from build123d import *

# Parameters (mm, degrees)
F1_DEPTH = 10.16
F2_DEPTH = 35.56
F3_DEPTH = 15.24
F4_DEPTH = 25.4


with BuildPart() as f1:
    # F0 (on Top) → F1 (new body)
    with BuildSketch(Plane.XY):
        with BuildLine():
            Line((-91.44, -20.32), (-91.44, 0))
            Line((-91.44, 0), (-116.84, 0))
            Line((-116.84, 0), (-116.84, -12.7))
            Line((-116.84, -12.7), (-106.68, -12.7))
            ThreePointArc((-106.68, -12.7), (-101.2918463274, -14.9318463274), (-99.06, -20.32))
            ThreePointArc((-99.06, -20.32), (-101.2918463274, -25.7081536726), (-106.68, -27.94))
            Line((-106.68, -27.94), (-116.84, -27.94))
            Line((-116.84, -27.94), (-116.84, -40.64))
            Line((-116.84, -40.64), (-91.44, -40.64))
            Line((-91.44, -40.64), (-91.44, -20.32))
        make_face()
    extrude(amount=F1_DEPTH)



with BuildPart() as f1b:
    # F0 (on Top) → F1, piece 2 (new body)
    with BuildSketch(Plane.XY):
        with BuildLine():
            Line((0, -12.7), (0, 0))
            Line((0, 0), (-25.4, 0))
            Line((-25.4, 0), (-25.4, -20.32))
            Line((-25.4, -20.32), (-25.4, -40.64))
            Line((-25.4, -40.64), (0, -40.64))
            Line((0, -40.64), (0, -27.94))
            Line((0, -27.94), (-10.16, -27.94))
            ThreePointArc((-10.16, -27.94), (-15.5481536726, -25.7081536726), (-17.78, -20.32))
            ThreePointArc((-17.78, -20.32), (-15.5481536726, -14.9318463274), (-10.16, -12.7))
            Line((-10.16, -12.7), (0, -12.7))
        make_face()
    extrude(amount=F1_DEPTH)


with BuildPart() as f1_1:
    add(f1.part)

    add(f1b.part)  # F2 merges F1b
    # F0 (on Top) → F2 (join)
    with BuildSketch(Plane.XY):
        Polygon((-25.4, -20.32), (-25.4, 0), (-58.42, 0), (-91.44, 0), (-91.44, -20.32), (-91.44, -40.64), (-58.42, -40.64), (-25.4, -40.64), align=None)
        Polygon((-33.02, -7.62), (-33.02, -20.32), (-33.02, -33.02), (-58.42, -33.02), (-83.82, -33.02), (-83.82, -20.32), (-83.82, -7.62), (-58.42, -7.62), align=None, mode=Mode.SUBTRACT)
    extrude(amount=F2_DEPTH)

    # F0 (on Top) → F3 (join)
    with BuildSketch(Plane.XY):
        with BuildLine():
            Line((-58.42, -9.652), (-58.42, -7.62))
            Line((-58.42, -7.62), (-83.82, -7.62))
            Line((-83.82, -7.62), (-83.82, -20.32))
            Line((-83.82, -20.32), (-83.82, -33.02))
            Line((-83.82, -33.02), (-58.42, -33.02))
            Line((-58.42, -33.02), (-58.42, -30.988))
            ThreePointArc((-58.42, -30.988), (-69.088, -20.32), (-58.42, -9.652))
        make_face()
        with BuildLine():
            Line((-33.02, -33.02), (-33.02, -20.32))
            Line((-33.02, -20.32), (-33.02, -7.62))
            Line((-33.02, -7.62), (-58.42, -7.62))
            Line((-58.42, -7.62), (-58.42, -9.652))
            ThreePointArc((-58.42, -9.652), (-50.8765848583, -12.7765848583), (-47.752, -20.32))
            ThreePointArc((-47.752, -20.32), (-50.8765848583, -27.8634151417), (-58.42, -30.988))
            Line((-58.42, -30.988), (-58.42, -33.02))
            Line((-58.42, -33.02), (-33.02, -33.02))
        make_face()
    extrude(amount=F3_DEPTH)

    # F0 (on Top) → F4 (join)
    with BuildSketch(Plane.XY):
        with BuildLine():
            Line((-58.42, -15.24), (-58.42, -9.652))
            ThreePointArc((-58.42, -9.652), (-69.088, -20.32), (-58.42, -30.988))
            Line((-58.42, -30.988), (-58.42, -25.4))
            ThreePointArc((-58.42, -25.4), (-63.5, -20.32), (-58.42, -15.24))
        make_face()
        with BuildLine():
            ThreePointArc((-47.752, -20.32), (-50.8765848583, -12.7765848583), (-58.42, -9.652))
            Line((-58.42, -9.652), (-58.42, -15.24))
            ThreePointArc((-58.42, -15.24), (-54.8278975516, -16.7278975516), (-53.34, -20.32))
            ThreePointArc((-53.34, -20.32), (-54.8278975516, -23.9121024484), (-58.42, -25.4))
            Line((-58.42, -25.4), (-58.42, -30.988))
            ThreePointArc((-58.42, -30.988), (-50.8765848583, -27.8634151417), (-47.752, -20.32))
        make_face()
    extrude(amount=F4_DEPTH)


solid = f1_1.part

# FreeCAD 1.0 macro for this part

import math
import FreeCAD as App
import Part
import Sketcher

V = App.Vector
Q = App.Units.Quantity


def add_polygon(sketch, points):
    """Adds a closed chain of lines whose ends are joined by coincident constraints."""
    first, n = sketch.GeometryCount, len(points)
    for a, b in zip(points, points[1:] + points[:1]):
        sketch.addGeometry(Part.LineSegment(App.Vector(*a, 0), App.Vector(*b, 0)), False)
    for i in range(n):
        sketch.addConstraint(Sketcher.Constraint("Coincident", first + i, 2, first + (i + 1) % n, 1))

doc = App.newDocument("Part")
body = doc.addObject("PartDesign::Body", "Body")

# Sketch on XY plane
sketch1 = body.newObject("Sketcher::SketchObject", "Sketch")
sketch1.AttachmentSupport = (doc.getObject("XY_Plane"), [""])
sketch1.MapMode = "FlatFace"
sketch1.addGeometry([
    Part.LineSegment(V(-91, 0, 0), V(-117, 0, 0)),  # 0
    Part.LineSegment(V(-117, 0, 0), V(-117, -13, 0)),  # 1
    Part.LineSegment(V(-117, -13, 0), V(-107, -13, 0)),  # 2
    Part.ArcOfCircle(Part.Circle(V(-107, -20, 0), V(0, 0, 1), 8), math.radians(0), math.radians(90)),  # 3
    Part.ArcOfCircle(Part.Circle(V(-107, -20, 0), V(0, 0, 1), 8), math.radians(-90), math.radians(0)),  # 4
    Part.LineSegment(V(-107, -28, 0), V(-117, -28, 0)),  # 5
    Part.LineSegment(V(-117, -28, 0), V(-117, -41, 0)),  # 6
    Part.LineSegment(V(-117, -41, 0), V(-91, -41, 0)),  # 7
    Part.LineSegment(V(-91, -41, 0), V(-91, 0, 0)),  # 8
], False)
sketch1.addConstraint([
    Sketcher.Constraint("Coincident", 0, 2, 1, 1),
    Sketcher.Constraint("Coincident", 1, 2, 2, 1),
    Sketcher.Constraint("Tangent", 2, 2, 3, 2),
    Sketcher.Constraint("Tangent", 3, 1, 4, 2),
    Sketcher.Constraint("Tangent", 4, 1, 5, 1),
    Sketcher.Constraint("Coincident", 5, 2, 6, 1),
    Sketcher.Constraint("Coincident", 6, 2, 7, 1),
    Sketcher.Constraint("Coincident", 7, 2, 8, 1),
    Sketcher.Constraint("Coincident", 8, 2, 0, 1),
    Sketcher.Constraint("Horizontal", 0),
    Sketcher.Constraint("Vertical", 1),
    Sketcher.Constraint("Horizontal", 2),
    Sketcher.Constraint("Horizontal", 5),
    Sketcher.Constraint("Vertical", 6),
    Sketcher.Constraint("Horizontal", 7),
    Sketcher.Constraint("Vertical", 8),
    Sketcher.Constraint("Equal", 3, 4),
    Sketcher.Constraint("PointOnObject", 0, 2, -1),
    Sketcher.Constraint("Horizontal", 4, 3, 3, 1),
    Sketcher.Constraint("Vertical", 1, 2, 5, 2),
    Sketcher.Constraint("Equal", 1, 6),
    Sketcher.Constraint("Radius", 3, Q("0.3 in")),
    Sketcher.Constraint("DistanceX", 0, 2, 0, 1, Q("1 in")),
    Sketcher.Constraint("DistanceX", 2, 1, 2, 2, Q("0.4 in")),
    Sketcher.Constraint("DistanceY", 1, 2, 1, 1, Q("0.5 in")),
    Sketcher.Constraint("DistanceX", 3, 3, -1, 1, Q("4.2 in")),
])
pad1 = body.newObject("PartDesign::Pad", "Pad")
pad1.Profile = sketch1
pad1.Length = Q("0.4 in")
body2 = doc.addObject("PartDesign::Body", "Body001")

# Sketch on XY plane
sketch2 = body2.newObject("Sketcher::SketchObject", "Sketch001")
sketch2.AttachmentSupport = (doc.getObject("XY_Plane001"), [""])
sketch2.MapMode = "FlatFace"
sketch2.addGeometry([
    Part.LineSegment(V(0, -13, 0), V(0, 0, 0)),  # 0
    Part.LineSegment(V(0, 0, 0), V(-25, 0, 0)),  # 1
    Part.LineSegment(V(-25, 0, 0), V(-25, -41, 0)),  # 2
    Part.LineSegment(V(-25, -41, 0), V(0, -41, 0)),  # 3
    Part.LineSegment(V(0, -41, 0), V(0, -28, 0)),  # 4
    Part.LineSegment(V(0, -28, 0), V(-10, -28, 0)),  # 5
    Part.ArcOfCircle(Part.Circle(V(-10, -20, 0), V(0, 0, 1), 8), math.radians(180), math.radians(270)),  # 6
    Part.ArcOfCircle(Part.Circle(V(-10, -20, 0), V(0, 0, 1), 8), math.radians(90), math.radians(180)),  # 7
    Part.LineSegment(V(-10, -13, 0), V(0, -13, 0)),  # 8
], False)
sketch2.addConstraint([
    Sketcher.Constraint("Coincident", 0, 2, 1, 1),
    Sketcher.Constraint("Coincident", 1, 2, 2, 1),
    Sketcher.Constraint("Coincident", 2, 2, 3, 1),
    Sketcher.Constraint("Coincident", 3, 2, 4, 1),
    Sketcher.Constraint("Coincident", 4, 2, 5, 1),
    Sketcher.Constraint("Tangent", 5, 2, 6, 2),
    Sketcher.Constraint("Tangent", 6, 1, 7, 2),
    Sketcher.Constraint("Tangent", 7, 1, 8, 1),
    Sketcher.Constraint("Coincident", 8, 2, 0, 1),
    Sketcher.Constraint("Vertical", 0),
    Sketcher.Constraint("Horizontal", 1),
    Sketcher.Constraint("Vertical", 2),
    Sketcher.Constraint("Horizontal", 3),
    Sketcher.Constraint("Vertical", 4),
    Sketcher.Constraint("Horizontal", 5),
    Sketcher.Constraint("Horizontal", 8),
    Sketcher.Constraint("Coincident", 0, 2, -1, 1),
    Sketcher.Constraint("Equal", 6, 7),
    Sketcher.Constraint("PointOnObject", 3, 2, -2),
    Sketcher.Constraint("Horizontal", 7, 3, 6, 1),
    Sketcher.Constraint("Equal", 0, 4),
    Sketcher.Constraint("Radius", 6, Q("0.3 in")),
    Sketcher.Constraint("DistanceX", 1, 2, 1, 1, Q("1 in")),
    Sketcher.Constraint("DistanceX", 5, 2, 5, 1, Q("0.4 in")),
    Sketcher.Constraint("DistanceY", 0, 1, 0, 2, Q("0.5 in")),
])
pad2 = body2.newObject("PartDesign::Pad", "Pad001")
pad2.Profile = sketch2
pad2.Length = Q("0.4 in")
body.AllowCompound = True
doc.recompute()

boolean = body.newObject("PartDesign::Boolean", "Boolean")
boolean.Type = "Fuse"
boolean.addObjects([body2])

# Sketch on XY plane
sketch3 = body.newObject("Sketcher::SketchObject", "Sketch002")
sketch3.AttachmentSupport = (doc.getObject("XY_Plane"), [""])
sketch3.MapMode = "FlatFace"
add_polygon(sketch3, [(-25, 0), (-91, 0), (-91, -41), (-25, -41)])  # lines 0-3
add_polygon(sketch3, [(-84, -8), (-33, -8), (-33, -33), (-84, -33)])  # lines 4-7
sketch3.addConstraint([
    Sketcher.Constraint("Horizontal", 0),
    Sketcher.Constraint("Vertical", 1),
    Sketcher.Constraint("Horizontal", 2),
    Sketcher.Constraint("Vertical", 3),
    Sketcher.Constraint("Horizontal", 4),
    Sketcher.Constraint("Vertical", 5),
    Sketcher.Constraint("Horizontal", 6),
    Sketcher.Constraint("Vertical", 7),
    Sketcher.Constraint("PointOnObject", 0, 2, -1),
    Sketcher.Constraint("DistanceX", 4, 1, 4, 2, Q("2 in")),
    Sketcher.Constraint("DistanceY", 5, 2, 5, 1, Q("1 in")),
    Sketcher.Constraint("DistanceX", 0, 2, 0, 1, Q("2.6 in")),
    Sketcher.Constraint("DistanceY", 1, 2, 1, 1, Q("1.6 in")),
    Sketcher.Constraint("DistanceX", 2, 2, -1, 1, Q("1 in")),
    Sketcher.Constraint("DistanceX", 4, 2, -1, 1, Q("1.3 in")),
    Sketcher.Constraint("DistanceY", 4, 2, -1, 1, Q("0.3 in")),
])
pad3 = body.newObject("PartDesign::Pad", "Pad002")
pad3.Profile = sketch3
pad3.Length = Q("1.4 in")

# Sketch on XY plane
sketch4 = body.newObject("Sketcher::SketchObject", "Sketch003")
sketch4.AttachmentSupport = (doc.getObject("XY_Plane"), [""])
sketch4.MapMode = "FlatFace"
add_polygon(sketch4, [(-84, -8), (-84, -33), (-33, -33), (-33, -8)])  # lines 0-3
sketch4.addGeometry(Part.Circle(V(-58, -20, 0), V(0, 0, 1), 11), False)  # 4
sketch4.addConstraint([
    Sketcher.Constraint("Vertical", 0),
    Sketcher.Constraint("Horizontal", 1),
    Sketcher.Constraint("Vertical", 2),
    Sketcher.Constraint("Horizontal", 3),
    Sketcher.Constraint("Diameter", 4, Q("0.84 in")),
    Sketcher.Constraint("DistanceX", 1, 1, 1, 2, Q("2 in")),
    Sketcher.Constraint("DistanceY", 0, 2, 0, 1, Q("1 in")),
    Sketcher.Constraint("DistanceX", 0, 2, 4, 3, Q("1 in")),
    Sketcher.Constraint("DistanceX", 4, 3, -1, 1, Q("2.3 in")),
    Sketcher.Constraint("DistanceY", 4, 3, -1, 1, Q("0.8 in")),
    Sketcher.Constraint("DistanceY", 0, 2, -1, 1, Q("1.3 in")),
])
pad4 = body.newObject("PartDesign::Pad", "Pad003")
pad4.Profile = sketch4
pad4.Length = Q("0.6 in")

# Sketch on XY plane
sketch5 = body.newObject("Sketcher::SketchObject", "Sketch004")
sketch5.AttachmentSupport = (doc.getObject("XY_Plane"), [""])
sketch5.MapMode = "FlatFace"
sketch5.addGeometry([
    Part.Circle(V(-58, -20, 0), V(0, 0, 1), 11),
    Part.ArcOfCircle(Part.Circle(V(-58, -20, 0), V(0, 0, 1), 5), math.radians(90), math.radians(270)),
    Part.ArcOfCircle(Part.Circle(V(-58, -20, 0), V(0, 0, 1), 5), math.radians(0), math.radians(90)),
    Part.ArcOfCircle(Part.Circle(V(-58, -20, 0), V(0, 0, 1), 5), math.radians(-90), math.radians(0)),
], False)
sketch5.addConstraint([
    Sketcher.Constraint("Tangent", 1, 1, 2, 2),
    Sketcher.Constraint("Tangent", 2, 1, 3, 2),
    Sketcher.Constraint("Tangent", 3, 1, 1, 2),
    Sketcher.Constraint("Coincident", 1, 3, 0, 3),
    Sketcher.Constraint("Horizontal", 3, 3, 2, 1),
    Sketcher.Constraint("Vertical", 3, 3, 1, 1),
    Sketcher.Constraint("Vertical", 1, 1, 3, 1),
    Sketcher.Constraint("Radius", 1, Q("0.2 in")),
    Sketcher.Constraint("Diameter", 0, Q("0.84 in")),
    Sketcher.Constraint("DistanceY", 3, 1, -1, 1, Q("1 in")),
    Sketcher.Constraint("DistanceX", 0, 3, -1, 1, Q("2.3 in")),
])
pad5 = body.newObject("PartDesign::Pad", "Pad004")
pad5.Profile = sketch5
pad5.Length = Q("1 in")

doc.recompute()
